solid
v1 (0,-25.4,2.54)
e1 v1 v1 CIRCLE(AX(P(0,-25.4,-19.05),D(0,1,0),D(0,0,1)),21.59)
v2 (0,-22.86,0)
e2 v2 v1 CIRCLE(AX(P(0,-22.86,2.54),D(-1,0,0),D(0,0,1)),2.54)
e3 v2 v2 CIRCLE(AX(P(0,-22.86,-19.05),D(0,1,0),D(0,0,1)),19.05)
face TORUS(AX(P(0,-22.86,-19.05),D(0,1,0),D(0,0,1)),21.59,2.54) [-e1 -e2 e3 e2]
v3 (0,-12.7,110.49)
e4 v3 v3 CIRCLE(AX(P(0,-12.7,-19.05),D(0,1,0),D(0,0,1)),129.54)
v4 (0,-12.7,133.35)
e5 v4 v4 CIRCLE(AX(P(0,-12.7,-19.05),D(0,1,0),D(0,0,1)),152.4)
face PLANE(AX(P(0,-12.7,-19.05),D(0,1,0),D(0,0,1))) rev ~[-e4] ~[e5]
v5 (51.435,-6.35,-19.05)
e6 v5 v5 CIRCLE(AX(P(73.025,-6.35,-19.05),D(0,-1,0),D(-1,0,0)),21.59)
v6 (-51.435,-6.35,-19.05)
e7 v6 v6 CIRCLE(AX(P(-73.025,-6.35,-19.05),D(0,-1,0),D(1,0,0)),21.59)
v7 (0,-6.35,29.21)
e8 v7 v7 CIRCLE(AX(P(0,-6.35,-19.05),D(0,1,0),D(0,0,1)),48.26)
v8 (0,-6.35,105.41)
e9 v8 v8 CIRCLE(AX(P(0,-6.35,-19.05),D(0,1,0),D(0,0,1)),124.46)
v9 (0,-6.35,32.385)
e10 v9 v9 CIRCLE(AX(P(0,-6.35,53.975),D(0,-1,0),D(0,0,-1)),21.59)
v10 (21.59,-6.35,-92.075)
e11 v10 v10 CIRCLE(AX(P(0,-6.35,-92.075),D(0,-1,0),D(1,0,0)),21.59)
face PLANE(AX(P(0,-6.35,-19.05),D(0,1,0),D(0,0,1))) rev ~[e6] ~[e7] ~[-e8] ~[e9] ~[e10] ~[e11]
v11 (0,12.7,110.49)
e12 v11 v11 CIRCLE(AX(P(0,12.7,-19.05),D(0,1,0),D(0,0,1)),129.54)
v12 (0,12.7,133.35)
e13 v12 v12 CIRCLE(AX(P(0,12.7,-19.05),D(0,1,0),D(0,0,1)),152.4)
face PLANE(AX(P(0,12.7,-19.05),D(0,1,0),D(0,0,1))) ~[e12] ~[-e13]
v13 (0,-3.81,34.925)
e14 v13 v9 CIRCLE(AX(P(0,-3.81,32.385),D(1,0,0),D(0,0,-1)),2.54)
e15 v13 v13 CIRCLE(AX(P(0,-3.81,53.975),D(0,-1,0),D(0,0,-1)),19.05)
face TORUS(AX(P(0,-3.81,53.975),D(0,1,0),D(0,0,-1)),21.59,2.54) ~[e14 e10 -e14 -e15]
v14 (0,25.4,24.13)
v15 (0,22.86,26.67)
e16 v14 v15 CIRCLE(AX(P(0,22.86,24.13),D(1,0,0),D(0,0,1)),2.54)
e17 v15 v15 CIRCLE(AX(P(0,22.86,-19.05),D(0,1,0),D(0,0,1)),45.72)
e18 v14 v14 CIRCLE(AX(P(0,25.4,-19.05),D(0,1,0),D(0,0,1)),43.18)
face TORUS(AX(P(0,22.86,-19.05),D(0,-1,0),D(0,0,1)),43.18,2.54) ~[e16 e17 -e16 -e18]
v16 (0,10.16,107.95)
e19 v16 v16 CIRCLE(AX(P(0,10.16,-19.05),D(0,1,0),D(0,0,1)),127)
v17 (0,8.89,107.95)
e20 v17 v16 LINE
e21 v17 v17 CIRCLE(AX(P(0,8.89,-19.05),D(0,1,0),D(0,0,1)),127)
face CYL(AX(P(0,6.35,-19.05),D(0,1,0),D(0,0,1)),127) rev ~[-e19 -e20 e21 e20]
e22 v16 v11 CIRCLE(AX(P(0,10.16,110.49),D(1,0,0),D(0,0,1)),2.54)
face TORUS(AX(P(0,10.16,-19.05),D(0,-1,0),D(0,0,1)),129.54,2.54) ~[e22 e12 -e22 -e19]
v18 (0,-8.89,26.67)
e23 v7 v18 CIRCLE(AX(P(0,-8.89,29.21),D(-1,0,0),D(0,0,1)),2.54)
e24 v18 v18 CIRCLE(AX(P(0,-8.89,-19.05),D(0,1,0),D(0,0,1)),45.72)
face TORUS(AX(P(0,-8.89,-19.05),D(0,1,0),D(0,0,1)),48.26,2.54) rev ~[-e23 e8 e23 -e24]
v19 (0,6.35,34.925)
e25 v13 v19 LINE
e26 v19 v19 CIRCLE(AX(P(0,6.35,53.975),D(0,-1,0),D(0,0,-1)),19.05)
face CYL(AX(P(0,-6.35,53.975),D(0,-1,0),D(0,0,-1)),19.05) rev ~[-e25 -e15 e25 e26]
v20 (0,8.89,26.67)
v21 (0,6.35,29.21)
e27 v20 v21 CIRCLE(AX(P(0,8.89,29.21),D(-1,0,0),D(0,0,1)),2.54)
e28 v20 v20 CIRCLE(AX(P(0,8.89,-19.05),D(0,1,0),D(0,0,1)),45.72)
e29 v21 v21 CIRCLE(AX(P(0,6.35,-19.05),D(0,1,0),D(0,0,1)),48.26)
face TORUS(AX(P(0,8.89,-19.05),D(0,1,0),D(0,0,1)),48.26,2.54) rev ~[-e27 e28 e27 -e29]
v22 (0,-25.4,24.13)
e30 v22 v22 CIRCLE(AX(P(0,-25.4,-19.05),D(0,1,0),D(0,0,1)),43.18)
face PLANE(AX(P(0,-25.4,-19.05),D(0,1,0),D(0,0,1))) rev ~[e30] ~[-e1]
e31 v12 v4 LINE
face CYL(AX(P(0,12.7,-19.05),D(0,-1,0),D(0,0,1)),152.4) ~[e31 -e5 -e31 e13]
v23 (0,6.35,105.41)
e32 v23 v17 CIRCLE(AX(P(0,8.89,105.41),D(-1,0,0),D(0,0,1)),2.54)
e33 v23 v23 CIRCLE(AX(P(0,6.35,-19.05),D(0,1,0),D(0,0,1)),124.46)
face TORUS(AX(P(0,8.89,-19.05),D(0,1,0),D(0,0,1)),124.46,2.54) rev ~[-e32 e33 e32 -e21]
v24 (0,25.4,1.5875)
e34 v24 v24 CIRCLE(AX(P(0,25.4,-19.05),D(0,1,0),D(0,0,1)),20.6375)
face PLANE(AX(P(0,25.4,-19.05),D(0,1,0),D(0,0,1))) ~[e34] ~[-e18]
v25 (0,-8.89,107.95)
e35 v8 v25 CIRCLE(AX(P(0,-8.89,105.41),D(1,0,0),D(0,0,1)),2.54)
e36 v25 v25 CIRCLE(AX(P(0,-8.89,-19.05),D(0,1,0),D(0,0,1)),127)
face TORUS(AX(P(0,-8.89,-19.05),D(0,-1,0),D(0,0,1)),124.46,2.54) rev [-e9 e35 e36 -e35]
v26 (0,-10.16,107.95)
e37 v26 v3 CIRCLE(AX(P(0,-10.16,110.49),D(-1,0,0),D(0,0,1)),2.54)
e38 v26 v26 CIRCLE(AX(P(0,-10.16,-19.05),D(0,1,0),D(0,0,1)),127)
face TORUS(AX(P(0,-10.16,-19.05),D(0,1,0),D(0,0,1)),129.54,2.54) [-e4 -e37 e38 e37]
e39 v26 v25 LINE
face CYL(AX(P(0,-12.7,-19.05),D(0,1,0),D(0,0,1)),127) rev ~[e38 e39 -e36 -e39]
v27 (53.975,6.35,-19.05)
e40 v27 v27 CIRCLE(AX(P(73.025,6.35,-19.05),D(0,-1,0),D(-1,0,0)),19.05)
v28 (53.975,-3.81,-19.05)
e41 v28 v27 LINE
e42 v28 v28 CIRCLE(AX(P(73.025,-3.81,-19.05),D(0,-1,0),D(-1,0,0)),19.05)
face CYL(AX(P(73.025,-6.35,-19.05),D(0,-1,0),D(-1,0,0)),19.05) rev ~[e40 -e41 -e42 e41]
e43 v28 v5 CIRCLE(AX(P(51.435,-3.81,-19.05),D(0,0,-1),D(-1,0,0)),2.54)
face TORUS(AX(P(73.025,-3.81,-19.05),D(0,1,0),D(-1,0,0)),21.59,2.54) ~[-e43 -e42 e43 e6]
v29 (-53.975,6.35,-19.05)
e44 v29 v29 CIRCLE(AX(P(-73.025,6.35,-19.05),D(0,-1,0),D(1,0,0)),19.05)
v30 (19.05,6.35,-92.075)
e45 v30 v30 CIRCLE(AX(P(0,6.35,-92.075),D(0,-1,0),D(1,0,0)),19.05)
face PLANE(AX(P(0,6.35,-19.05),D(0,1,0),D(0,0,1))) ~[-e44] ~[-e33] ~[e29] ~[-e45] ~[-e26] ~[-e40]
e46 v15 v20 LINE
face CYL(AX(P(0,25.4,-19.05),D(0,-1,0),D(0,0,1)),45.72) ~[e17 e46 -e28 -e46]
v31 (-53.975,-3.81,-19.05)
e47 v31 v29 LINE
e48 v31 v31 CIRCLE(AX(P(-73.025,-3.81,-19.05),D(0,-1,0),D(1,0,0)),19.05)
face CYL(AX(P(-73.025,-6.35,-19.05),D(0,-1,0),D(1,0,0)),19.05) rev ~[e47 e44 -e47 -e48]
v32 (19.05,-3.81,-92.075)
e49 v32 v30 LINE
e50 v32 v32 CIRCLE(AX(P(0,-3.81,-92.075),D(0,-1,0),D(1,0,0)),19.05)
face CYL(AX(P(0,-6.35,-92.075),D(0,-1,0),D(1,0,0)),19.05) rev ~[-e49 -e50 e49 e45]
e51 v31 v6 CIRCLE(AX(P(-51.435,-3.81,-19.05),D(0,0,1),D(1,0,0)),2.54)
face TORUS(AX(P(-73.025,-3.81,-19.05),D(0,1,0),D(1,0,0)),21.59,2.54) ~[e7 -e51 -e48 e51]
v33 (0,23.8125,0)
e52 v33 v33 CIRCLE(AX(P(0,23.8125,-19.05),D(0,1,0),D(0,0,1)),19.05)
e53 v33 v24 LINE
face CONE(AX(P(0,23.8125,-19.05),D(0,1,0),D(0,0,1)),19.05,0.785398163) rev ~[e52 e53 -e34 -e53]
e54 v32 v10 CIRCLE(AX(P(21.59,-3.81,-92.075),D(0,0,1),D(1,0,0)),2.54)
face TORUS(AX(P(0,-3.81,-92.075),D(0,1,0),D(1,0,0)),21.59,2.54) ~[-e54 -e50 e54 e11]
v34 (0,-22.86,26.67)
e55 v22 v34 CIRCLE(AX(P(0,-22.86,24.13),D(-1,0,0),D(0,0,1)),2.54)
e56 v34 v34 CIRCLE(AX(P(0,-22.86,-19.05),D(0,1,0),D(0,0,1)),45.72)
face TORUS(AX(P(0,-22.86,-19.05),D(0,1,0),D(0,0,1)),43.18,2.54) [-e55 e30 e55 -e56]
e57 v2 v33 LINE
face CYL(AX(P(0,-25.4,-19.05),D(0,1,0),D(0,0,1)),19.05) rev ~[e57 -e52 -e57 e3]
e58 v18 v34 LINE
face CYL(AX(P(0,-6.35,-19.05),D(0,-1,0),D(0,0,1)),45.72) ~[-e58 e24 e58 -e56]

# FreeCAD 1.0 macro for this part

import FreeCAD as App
import Part
import Sketcher
from FreeCAD import Vector
Q = App.Units.Quantity


def edges_at(feature, points):
    """Names of the edges that pass closest to the given points."""
    edges = feature.Shape.Edges
    near = lambda p: min(range(len(edges)), key=lambda i: edges[i].distToShape(Part.Vertex(*p))[0])
    return sorted({f"Edge{near(p) + 1}" for p in points})

doc = App.newDocument("Part")
body = doc.addObject("PartDesign::Body", "Body")

sketch1 = body.newObject("Sketcher::SketchObject", "Sketch")
sketch1.AttachmentSupport = (doc.getObject("YZ_Plane"), [""])
sketch1.MapMode = "FlatFace"
sketch1.addGeometry(Part.LineSegment(Vector(25, 27, 0), Vector(6, 27, 0)), False)
sketch1.addGeometry(Part.LineSegment(Vector(6, 27, 0), Vector(6, 108, 0)), False)
sketch1.addGeometry(Part.LineSegment(Vector(6, 108, 0), Vector(13, 108, 0)), False)
sketch1.addGeometry(Part.LineSegment(Vector(13, 108, 0), Vector(13, 133, 0)), False)
sketch1.addGeometry(Part.LineSegment(Vector(13, 133, 0), Vector(-13, 133, 0)), False)
sketch1.addGeometry(Part.LineSegment(Vector(-13, 133, 0), Vector(-13, 108, 0)), False)
sketch1.addGeometry(Part.LineSegment(Vector(-13, 108, 0), Vector(-6, 108, 0)), False)
sketch1.addGeometry(Part.LineSegment(Vector(-6, 108, 0), Vector(-6, 27, 0)), False)
sketch1.addGeometry(Part.LineSegment(Vector(-6, 27, 0), Vector(-25, 27, 0)), False)
sketch1.addGeometry(Part.LineSegment(Vector(-25, 27, 0), Vector(-25, 0, 0)), False)
sketch1.addGeometry(Part.LineSegment(Vector(-25, 0, 0), Vector(25, 0, 0)), False)
sketch1.addGeometry(Part.LineSegment(Vector(25, 0, 0), Vector(25, 27, 0)), False)
sketch1.addGeometry(Part.LineSegment(Vector(-25, -19, 0), Vector(25, -19, 0)), True)
sketch1.addConstraint(Sketcher.Constraint("Coincident", 0, 2, 1, 1))
sketch1.addConstraint(Sketcher.Constraint("Coincident", 1, 2, 2, 1))
sketch1.addConstraint(Sketcher.Constraint("Coincident", 2, 2, 3, 1))
sketch1.addConstraint(Sketcher.Constraint("Coincident", 3, 2, 4, 1))
sketch1.addConstraint(Sketcher.Constraint("Coincident", 4, 2, 5, 1))
sketch1.addConstraint(Sketcher.Constraint("Coincident", 5, 2, 6, 1))
sketch1.addConstraint(Sketcher.Constraint("Coincident", 6, 2, 7, 1))
sketch1.addConstraint(Sketcher.Constraint("Coincident", 7, 2, 8, 1))
sketch1.addConstraint(Sketcher.Constraint("Coincident", 8, 2, 9, 1))
sketch1.addConstraint(Sketcher.Constraint("Coincident", 9, 2, 10, 1))
sketch1.addConstraint(Sketcher.Constraint("Coincident", 10, 2, 11, 1))
sketch1.addConstraint(Sketcher.Constraint("Coincident", 11, 2, 0, 1))
sketch1.addConstraint(Sketcher.Constraint("Horizontal", 0))
sketch1.addConstraint(Sketcher.Constraint("Vertical", 1))
sketch1.addConstraint(Sketcher.Constraint("Horizontal", 2))
sketch1.addConstraint(Sketcher.Constraint("Vertical", 3))
sketch1.addConstraint(Sketcher.Constraint("Horizontal", 4))
sketch1.addConstraint(Sketcher.Constraint("Vertical", 5))
sketch1.addConstraint(Sketcher.Constraint("Horizontal", 6))
sketch1.addConstraint(Sketcher.Constraint("Vertical", 7))
sketch1.addConstraint(Sketcher.Constraint("Horizontal", 8))
sketch1.addConstraint(Sketcher.Constraint("Vertical", 9))
sketch1.addConstraint(Sketcher.Constraint("Horizontal", 10))
sketch1.addConstraint(Sketcher.Constraint("Vertical", 11))
sketch1.addConstraint(Sketcher.Constraint("Horizontal", 12))
sketch1.addConstraint(Sketcher.Constraint("Symmetric", 9, 2, 10, 2, -1, 1))
sketch1.addConstraint(Sketcher.Constraint("Symmetric", 2, 2, 5, 2, -2))
sketch1.addConstraint(Sketcher.Constraint("Symmetric", 0, 2, 7, 2, -2))
sketch1.addConstraint(Sketcher.Constraint("Vertical", 9, 2, 12, 1))
sketch1.addConstraint(Sketcher.Constraint("Vertical", 11, 2, 12, 2))
sketch1.addConstraint(Sketcher.Constraint("Equal", 4, 3))
sketch1.addConstraint(Sketcher.Constraint("DistanceX", 4, 2, 4, 1, Q("1 in")))
sketch1.addConstraint(Sketcher.Constraint("DistanceX", 10, 1, 10, 2, Q("2 in")))
sketch1.addConstraint(Sketcher.Constraint("DistanceY", 1, 1, 1, 2, Q("3.2 in")))
sketch1.addConstraint(Sketcher.Constraint("DistanceX", 0, 2, 0, 1, Q("0.75 in")))
sketch1.addConstraint(Sketcher.Constraint("DistanceY", 9, 2, 9, 1, Q("1.05 in")))
sketch1.addConstraint(Sketcher.Constraint("DistanceY", 12, 1, 8, 2, Q("1.8 in")))
revolution = body.newObject("PartDesign::Revolution", "Revolution")
revolution.Profile = sketch1
revolution.ReferenceAxis = (sketch1, ["Axis0"])
revolution.Angle = 360

sketch2 = body.newObject("Sketcher::SketchObject", "Sketch001")
sketch2.AttachmentSupport = (doc.getObject("XZ_Plane"), [""])
sketch2.MapMode = "FlatFace"
sketch2.AttachmentOffset = App.Placement(Vector(0, 0, 0.25 * 25.4), App.Rotation())
sketch2.addGeometry(Part.Circle(Vector(73, -19, 0), Vector(0, 0, 1), 19), False)
sketch2.addGeometry(Part.Circle(Vector(-73, -19, 0), Vector(0, 0, 1), 19), False)
sketch2.addGeometry(Part.Circle(Vector(0, -92, 0), Vector(0, 0, 1), 19), False)
sketch2.addGeometry(Part.Circle(Vector(0, 54, 0), Vector(0, 0, 1), 19), False)
sketch2.addConstraint(Sketcher.Constraint("Equal", 0, 1))
sketch2.addConstraint(Sketcher.Constraint("Equal", 1, 2))
sketch2.addConstraint(Sketcher.Constraint("Equal", 2, 3))
sketch2.addConstraint(Sketcher.Constraint("Symmetric", 0, 3, 1, 3, -2))
sketch2.addConstraint(Sketcher.Constraint("PointOnObject", 2, 3, -2))
sketch2.addConstraint(Sketcher.Constraint("PointOnObject", 3, 3, -2))
sketch2.addConstraint(Sketcher.Constraint("Diameter", 0, Q("1.5 in")))
sketch2.addConstraint(Sketcher.Constraint("DistanceY", 0, 3, -1, 1, Q("0.75 in")))
sketch2.addConstraint(Sketcher.Constraint("DistanceX", 1, 3, 0, 3, Q("5.75 in")))
sketch2.addConstraint(Sketcher.Constraint("DistanceY", 2, 3, 3, 3, Q("5.75 in")))
sketch2.addConstraint(Sketcher.Constraint("DistanceY", 2, 3, -1, 1, Q("3.625 in")))
pocket1 = body.newObject("PartDesign::Pocket", "Pocket")
pocket1.Profile = sketch2
pocket1.Length = Q("1 in")
doc.recompute()

fillet = body.newObject("PartDesign::Fillet", "Fillet")
fillet.Base = (pocket1, edges_at(pocket1, [
    (0, -12.7, -146.05),
    (0, -6.35, -146.05),
    (0, -25.4, -64.77),
    (0, -25.4, -38.1),
    (-92.075, -6.35, -19.05),
    (-19.05, -6.35, -92.075),
    (0, -6.35, -64.77),
    (0, -6.35, 73.025),
    (92.075, -6.35, -19.05),
]))
fillet.Radius = Q("0.1 in")
doc.recompute()

chamfer = body.newObject("PartDesign::Chamfer", "Chamfer")
chamfer.Base = (fillet, edges_at(fillet, [(0, -25.4, -40.64), (0, 25.4, -38.1)]))
chamfer.Size = Q("0.0625 in")
doc.recompute()

fillet2 = body.newObject("PartDesign::Fillet", "Fillet001")
fillet2.Base = (chamfer, edges_at(chamfer, [
    (0, 6.35, -146.05),
    (0, 12.7, -146.05),
    (0, 25.4, -64.77),
    (0, 6.35, -64.77),
]))
fillet2.Radius = Q("0.1 in")

doc.recompute()
